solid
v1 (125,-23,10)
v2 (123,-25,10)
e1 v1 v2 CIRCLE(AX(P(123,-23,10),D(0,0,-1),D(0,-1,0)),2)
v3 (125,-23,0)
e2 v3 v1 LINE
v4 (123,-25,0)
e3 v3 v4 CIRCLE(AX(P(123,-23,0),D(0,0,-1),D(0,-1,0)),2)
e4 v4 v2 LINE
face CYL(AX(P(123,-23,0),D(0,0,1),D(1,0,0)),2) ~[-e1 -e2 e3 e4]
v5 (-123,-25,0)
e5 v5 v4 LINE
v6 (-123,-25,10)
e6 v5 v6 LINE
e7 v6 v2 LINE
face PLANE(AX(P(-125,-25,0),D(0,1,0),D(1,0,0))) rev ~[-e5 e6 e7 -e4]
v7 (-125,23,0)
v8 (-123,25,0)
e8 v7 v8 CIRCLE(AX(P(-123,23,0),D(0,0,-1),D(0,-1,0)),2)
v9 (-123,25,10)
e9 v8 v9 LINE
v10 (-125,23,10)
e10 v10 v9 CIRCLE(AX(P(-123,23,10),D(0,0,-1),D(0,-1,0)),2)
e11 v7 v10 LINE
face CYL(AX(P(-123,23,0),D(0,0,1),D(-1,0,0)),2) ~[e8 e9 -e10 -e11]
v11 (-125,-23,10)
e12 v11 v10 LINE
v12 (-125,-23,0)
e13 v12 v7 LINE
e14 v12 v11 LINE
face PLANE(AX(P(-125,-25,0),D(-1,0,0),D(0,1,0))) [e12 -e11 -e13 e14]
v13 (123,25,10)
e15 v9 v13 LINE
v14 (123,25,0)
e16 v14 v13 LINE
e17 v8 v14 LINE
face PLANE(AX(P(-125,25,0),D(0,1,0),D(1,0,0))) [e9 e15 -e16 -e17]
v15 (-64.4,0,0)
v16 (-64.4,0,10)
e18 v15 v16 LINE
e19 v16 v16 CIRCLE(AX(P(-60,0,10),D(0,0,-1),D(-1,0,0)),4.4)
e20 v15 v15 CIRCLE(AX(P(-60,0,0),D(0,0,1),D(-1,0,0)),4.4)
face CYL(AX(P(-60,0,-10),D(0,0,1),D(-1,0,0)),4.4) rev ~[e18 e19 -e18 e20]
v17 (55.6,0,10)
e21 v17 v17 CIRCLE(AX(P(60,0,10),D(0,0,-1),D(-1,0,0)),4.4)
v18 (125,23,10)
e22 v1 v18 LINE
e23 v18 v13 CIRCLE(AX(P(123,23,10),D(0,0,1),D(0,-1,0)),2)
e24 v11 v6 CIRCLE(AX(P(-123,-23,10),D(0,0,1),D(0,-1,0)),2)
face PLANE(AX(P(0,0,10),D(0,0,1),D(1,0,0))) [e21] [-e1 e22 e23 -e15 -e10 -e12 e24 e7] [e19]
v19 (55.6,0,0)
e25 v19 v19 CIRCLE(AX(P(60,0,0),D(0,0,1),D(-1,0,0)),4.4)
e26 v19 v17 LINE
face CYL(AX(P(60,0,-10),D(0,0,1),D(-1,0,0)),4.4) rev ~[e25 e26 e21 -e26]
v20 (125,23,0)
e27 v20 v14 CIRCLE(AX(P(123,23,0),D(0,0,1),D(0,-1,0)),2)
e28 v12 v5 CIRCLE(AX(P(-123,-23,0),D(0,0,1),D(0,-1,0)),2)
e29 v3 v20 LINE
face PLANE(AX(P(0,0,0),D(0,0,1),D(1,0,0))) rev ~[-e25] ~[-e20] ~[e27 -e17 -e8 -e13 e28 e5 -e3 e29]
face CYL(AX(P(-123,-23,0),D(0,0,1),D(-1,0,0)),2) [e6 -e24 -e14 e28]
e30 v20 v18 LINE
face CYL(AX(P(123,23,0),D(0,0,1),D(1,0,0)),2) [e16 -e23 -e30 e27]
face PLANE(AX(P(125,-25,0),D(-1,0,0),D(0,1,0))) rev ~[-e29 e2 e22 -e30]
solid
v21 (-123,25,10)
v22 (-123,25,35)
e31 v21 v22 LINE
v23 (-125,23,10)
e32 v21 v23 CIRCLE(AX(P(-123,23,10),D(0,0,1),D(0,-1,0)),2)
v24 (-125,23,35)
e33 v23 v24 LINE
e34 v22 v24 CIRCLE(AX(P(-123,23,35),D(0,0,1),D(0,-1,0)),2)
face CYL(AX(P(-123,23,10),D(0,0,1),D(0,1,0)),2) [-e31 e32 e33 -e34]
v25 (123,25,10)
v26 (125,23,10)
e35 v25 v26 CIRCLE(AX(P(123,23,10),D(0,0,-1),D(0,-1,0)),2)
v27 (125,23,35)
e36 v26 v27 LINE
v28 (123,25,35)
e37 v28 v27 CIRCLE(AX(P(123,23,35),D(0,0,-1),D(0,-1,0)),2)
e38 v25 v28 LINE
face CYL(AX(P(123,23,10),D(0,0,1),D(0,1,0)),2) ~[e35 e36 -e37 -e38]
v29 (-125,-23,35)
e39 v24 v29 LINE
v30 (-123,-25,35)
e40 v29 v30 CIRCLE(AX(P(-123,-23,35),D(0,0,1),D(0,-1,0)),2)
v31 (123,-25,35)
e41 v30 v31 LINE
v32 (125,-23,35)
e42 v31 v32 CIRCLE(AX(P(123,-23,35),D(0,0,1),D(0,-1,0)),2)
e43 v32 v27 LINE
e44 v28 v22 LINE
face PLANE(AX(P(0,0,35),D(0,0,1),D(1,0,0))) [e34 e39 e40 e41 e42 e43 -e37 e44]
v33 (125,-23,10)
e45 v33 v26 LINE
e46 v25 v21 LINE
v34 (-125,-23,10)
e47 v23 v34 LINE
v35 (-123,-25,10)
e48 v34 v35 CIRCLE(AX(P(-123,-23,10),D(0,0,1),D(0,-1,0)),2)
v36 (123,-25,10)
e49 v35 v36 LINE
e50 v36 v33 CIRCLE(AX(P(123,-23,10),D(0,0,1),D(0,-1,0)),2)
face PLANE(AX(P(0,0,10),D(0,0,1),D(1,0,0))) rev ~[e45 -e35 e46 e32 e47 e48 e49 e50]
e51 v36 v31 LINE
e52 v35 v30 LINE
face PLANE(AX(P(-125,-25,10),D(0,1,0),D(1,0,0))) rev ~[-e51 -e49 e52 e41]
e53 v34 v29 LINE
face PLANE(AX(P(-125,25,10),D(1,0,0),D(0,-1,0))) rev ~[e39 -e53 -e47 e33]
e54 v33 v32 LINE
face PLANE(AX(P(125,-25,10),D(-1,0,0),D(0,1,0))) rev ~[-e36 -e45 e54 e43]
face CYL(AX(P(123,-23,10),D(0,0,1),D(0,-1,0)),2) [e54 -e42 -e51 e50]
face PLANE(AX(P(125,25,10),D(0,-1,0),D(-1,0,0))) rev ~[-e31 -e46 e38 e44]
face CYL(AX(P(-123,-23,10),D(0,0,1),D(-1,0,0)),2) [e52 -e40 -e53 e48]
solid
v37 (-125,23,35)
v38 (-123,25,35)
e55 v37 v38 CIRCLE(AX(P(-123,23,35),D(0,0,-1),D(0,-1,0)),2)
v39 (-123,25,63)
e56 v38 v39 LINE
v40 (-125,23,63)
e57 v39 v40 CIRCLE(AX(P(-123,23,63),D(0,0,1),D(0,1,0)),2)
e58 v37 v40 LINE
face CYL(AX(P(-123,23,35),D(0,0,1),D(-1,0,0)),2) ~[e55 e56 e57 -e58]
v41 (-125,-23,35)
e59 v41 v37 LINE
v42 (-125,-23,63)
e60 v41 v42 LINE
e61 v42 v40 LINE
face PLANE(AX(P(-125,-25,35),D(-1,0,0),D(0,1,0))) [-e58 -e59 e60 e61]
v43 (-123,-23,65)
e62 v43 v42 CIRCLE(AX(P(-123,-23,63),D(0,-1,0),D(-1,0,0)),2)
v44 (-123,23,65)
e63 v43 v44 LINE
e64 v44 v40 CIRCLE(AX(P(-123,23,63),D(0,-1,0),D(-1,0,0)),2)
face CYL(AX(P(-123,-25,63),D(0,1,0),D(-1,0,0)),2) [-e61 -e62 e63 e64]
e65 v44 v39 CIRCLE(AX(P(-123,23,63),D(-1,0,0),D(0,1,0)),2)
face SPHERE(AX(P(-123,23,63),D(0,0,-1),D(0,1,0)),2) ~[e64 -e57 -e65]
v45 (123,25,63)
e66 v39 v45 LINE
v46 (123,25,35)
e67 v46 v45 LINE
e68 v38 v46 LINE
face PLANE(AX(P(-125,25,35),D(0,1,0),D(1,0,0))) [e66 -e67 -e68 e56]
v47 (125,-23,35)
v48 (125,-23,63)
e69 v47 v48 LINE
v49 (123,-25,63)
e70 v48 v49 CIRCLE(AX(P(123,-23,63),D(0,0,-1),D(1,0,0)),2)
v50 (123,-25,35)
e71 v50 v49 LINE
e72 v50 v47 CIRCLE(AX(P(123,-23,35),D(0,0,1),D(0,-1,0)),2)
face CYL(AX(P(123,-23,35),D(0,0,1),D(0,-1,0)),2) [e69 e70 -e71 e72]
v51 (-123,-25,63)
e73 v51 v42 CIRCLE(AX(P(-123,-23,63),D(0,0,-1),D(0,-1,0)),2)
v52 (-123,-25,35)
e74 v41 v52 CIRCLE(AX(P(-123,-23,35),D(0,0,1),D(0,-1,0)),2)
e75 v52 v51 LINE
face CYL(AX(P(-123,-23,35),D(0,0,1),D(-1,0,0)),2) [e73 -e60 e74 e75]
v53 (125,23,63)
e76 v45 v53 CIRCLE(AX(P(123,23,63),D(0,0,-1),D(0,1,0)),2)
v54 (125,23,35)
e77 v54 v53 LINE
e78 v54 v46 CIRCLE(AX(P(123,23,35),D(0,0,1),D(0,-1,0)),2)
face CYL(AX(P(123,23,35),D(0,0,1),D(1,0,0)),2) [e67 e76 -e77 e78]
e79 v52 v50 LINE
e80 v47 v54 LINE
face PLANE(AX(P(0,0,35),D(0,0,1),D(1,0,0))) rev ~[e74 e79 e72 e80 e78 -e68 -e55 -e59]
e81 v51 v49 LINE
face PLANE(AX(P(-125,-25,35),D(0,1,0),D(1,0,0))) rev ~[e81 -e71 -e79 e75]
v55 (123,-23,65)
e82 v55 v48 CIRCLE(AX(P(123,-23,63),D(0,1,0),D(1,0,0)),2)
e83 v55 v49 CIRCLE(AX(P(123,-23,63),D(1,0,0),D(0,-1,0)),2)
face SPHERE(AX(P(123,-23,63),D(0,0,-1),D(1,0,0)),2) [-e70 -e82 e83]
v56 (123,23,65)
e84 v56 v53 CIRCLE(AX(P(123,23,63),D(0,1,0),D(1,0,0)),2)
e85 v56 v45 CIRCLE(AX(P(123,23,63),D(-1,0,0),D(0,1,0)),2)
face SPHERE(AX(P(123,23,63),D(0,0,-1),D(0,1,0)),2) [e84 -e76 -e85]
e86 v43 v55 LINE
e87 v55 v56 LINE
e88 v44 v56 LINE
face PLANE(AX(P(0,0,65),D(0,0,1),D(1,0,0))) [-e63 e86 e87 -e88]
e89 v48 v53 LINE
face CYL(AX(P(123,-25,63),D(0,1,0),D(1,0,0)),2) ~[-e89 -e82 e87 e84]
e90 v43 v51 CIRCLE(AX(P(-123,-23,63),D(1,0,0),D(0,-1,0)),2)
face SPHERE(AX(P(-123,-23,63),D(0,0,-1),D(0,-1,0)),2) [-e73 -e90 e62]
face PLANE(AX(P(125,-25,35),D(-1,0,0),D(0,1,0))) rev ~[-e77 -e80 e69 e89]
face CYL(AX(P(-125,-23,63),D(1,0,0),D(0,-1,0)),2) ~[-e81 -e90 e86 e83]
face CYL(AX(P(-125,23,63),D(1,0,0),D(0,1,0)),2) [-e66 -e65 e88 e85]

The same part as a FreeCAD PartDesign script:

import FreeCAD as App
import Part
import Sketcher

V = App.Vector
Q = App.Units.Quantity


def edges_at(feature, points):
    """Names of the edges that pass closest to the given points."""
    edges = feature.Shape.Edges
    near = lambda p: min(range(len(edges)), key=lambda i: edges[i].distToShape(Part.Vertex(*p))[0])
    return sorted({f"Edge{near(p) + 1}" for p in points})


def add_polygon(sketch, points):
    """Adds a closed chain of lines whose ends are joined by coincident constraints."""
    first, n = sketch.GeometryCount, len(points)
    for a, b in zip(points, points[1:] + points[:1]):
        sketch.addGeometry(Part.LineSegment(App.Vector(*a, 0), App.Vector(*b, 0)), False)
    for i in range(n):
        sketch.addConstraint(Sketcher.Constraint("Coincident", first + i, 2, first + (i + 1) % n, 1))

doc = App.newDocument("Part")
body = doc.addObject("PartDesign::Body", "Body")

# Sketch on XY plane
sketch1 = body.newObject("Sketcher::SketchObject", "Sketch")
sketch1.AttachmentSupport = (doc.getObject("XY_Plane"), [""])
sketch1.MapMode = "FlatFace"
add_polygon(sketch1, [(-125, 25), (-125, -25), (125, -25), (125, 25)])  # lines 0-3
sketch1.addConstraint(Sketcher.Constraint("Vertical", 0))
sketch1.addConstraint(Sketcher.Constraint("Horizontal", 1))
sketch1.addConstraint(Sketcher.Constraint("Vertical", 2))
sketch1.addConstraint(Sketcher.Constraint("Horizontal", 3))
sketch1.addConstraint(Sketcher.Constraint("Symmetric", 0, 2, 2, 2, -1, 1))
sketch1.addConstraint(Sketcher.Constraint("DistanceX", 1, 1, 1, 2, Q("250 mm")))
sketch1.addConstraint(Sketcher.Constraint("DistanceY", 0, 2, 0, 1, Q("50 mm")))
pad1 = body.newObject("PartDesign::Pad", "Pad")
pad1.Profile = sketch1
pad1.Length = 10

# Sketch on XY plane
sketch2 = body.newObject("Sketcher::SketchObject", "Sketch001")
sketch2.AttachmentSupport = (doc.getObject("XY_Plane"), [""])
sketch2.MapMode = "FlatFace"
sketch2.addGeometry(Part.Circle(V(-60, 0, 0), V(0, 0, 1), 4.4), False)
sketch2.addGeometry(Part.Circle(V(60, 0, 0), V(0, 0, 1), 4.4), False)
sketch2.addConstraint(Sketcher.Constraint("Equal", 0, 1))
sketch2.addConstraint(Sketcher.Constraint("Symmetric", 0, 3, 1, 3, -1, 1))
sketch2.addConstraint(Sketcher.Constraint("PointOnObject", 0, 3, -1))
sketch2.addConstraint(Sketcher.Constraint("Diameter", 0, Q("8.8 mm")))
sketch2.addConstraint(Sketcher.Constraint("DistanceX", 0, 3, -1, 1, Q("60 mm")))
doc.recompute()
hole = body.newObject("PartDesign::Hole", "Hole")
hole.Profile = sketch2
hole.ThreadType = "None"
hole.Diameter = 8.8
hole.DepthType = "Dimension"
hole.Depth = 10
hole.DrillPoint = "Angled"
hole.DrillPointAngle = 118
hole.Reversed = True
doc.recompute()

fillet = body.newObject("PartDesign::Fillet", "Fillet")
fillet.Base = (hole, edges_at(hole, [
    (-125, -25, 5),
    (-125, 25, 5),
    (125, 25, 5),
    (125, -25, 5),
]))
fillet.Radius = 2
body2 = doc.addObject("PartDesign::Body", "Body001")

# Sketch on XY plane
sketch3 = body2.newObject("Sketcher::SketchObject", "Sketch002")
sketch3.AttachmentSupport = (doc.getObject("XY_Plane001"), [""])
sketch3.MapMode = "FlatFace"
sketch3.AttachmentOffset = App.Placement(V(0, 0, 10), App.Rotation())
add_polygon(sketch3, [(125, 25), (-125, 25), (-125, -25), (125, -25)])  # lines 0-3
sketch3.addConstraint(Sketcher.Constraint("Horizontal", 0))
sketch3.addConstraint(Sketcher.Constraint("Vertical", 1))
sketch3.addConstraint(Sketcher.Constraint("Horizontal", 2))
sketch3.addConstraint(Sketcher.Constraint("Vertical", 3))
sketch3.addConstraint(Sketcher.Constraint("Symmetric", 0, 2, 2, 2, -1, 1))
sketch3.addConstraint(Sketcher.Constraint("DistanceX", 0, 2, 0, 1, Q("250 mm")))
sketch3.addConstraint(Sketcher.Constraint("DistanceY", 1, 2, 1, 1, Q("50 mm")))
pad2 = body2.newObject("PartDesign::Pad", "Pad001")
pad2.Profile = sketch3
pad2.Length = 25
doc.recompute()

fillet2 = body2.newObject("PartDesign::Fillet", "Fillet001")
fillet2.Base = (pad2, edges_at(pad2, [
    (-125, -25, 22.5),
    (-125, 25, 22.5),
    (125, -25, 22.5),
    (125, 25, 22.5),
]))
fillet2.Radius = 2
body3 = doc.addObject("PartDesign::Body", "Body002")

# Sketch on XY plane
sketch4 = body3.newObject("Sketcher::SketchObject", "Sketch003")
sketch4.AttachmentSupport = (doc.getObject("XY_Plane002"), [""])
sketch4.MapMode = "FlatFace"
sketch4.AttachmentOffset = App.Placement(V(0, 0, 35), App.Rotation())
add_polygon(sketch4, [(-125, 25), (-125, -25), (125, -25), (125, 25)])  # lines 0-3
sketch4.addConstraint(Sketcher.Constraint("Vertical", 0))
sketch4.addConstraint(Sketcher.Constraint("Horizontal", 1))
sketch4.addConstraint(Sketcher.Constraint("Vertical", 2))
sketch4.addConstraint(Sketcher.Constraint("Horizontal", 3))
sketch4.addConstraint(Sketcher.Constraint("Symmetric", 0, 2, 2, 2, -1, 1))
sketch4.addConstraint(Sketcher.Constraint("DistanceX", 1, 1, 1, 2, Q("250 mm")))
sketch4.addConstraint(Sketcher.Constraint("DistanceY", 0, 2, 0, 1, Q("50 mm")))
pad3 = body3.newObject("PartDesign::Pad", "Pad002")
pad3.Profile = sketch4
pad3.Length = 30
doc.recompute()

fillet3 = body3.newObject("PartDesign::Fillet", "Fillet002")
fillet3.Base = (pad3, edges_at(pad3, [
    (-125, -25, 50),
    (-125, 25, 50),
    (125, -25, 50),
    (125, 25, 50),
    (0, 25, 65),
    (125, 0, 65),
    (0, -25, 65),
    (-125, 0, 65),
]))
fillet3.Radius = 2

doc.recompute()
